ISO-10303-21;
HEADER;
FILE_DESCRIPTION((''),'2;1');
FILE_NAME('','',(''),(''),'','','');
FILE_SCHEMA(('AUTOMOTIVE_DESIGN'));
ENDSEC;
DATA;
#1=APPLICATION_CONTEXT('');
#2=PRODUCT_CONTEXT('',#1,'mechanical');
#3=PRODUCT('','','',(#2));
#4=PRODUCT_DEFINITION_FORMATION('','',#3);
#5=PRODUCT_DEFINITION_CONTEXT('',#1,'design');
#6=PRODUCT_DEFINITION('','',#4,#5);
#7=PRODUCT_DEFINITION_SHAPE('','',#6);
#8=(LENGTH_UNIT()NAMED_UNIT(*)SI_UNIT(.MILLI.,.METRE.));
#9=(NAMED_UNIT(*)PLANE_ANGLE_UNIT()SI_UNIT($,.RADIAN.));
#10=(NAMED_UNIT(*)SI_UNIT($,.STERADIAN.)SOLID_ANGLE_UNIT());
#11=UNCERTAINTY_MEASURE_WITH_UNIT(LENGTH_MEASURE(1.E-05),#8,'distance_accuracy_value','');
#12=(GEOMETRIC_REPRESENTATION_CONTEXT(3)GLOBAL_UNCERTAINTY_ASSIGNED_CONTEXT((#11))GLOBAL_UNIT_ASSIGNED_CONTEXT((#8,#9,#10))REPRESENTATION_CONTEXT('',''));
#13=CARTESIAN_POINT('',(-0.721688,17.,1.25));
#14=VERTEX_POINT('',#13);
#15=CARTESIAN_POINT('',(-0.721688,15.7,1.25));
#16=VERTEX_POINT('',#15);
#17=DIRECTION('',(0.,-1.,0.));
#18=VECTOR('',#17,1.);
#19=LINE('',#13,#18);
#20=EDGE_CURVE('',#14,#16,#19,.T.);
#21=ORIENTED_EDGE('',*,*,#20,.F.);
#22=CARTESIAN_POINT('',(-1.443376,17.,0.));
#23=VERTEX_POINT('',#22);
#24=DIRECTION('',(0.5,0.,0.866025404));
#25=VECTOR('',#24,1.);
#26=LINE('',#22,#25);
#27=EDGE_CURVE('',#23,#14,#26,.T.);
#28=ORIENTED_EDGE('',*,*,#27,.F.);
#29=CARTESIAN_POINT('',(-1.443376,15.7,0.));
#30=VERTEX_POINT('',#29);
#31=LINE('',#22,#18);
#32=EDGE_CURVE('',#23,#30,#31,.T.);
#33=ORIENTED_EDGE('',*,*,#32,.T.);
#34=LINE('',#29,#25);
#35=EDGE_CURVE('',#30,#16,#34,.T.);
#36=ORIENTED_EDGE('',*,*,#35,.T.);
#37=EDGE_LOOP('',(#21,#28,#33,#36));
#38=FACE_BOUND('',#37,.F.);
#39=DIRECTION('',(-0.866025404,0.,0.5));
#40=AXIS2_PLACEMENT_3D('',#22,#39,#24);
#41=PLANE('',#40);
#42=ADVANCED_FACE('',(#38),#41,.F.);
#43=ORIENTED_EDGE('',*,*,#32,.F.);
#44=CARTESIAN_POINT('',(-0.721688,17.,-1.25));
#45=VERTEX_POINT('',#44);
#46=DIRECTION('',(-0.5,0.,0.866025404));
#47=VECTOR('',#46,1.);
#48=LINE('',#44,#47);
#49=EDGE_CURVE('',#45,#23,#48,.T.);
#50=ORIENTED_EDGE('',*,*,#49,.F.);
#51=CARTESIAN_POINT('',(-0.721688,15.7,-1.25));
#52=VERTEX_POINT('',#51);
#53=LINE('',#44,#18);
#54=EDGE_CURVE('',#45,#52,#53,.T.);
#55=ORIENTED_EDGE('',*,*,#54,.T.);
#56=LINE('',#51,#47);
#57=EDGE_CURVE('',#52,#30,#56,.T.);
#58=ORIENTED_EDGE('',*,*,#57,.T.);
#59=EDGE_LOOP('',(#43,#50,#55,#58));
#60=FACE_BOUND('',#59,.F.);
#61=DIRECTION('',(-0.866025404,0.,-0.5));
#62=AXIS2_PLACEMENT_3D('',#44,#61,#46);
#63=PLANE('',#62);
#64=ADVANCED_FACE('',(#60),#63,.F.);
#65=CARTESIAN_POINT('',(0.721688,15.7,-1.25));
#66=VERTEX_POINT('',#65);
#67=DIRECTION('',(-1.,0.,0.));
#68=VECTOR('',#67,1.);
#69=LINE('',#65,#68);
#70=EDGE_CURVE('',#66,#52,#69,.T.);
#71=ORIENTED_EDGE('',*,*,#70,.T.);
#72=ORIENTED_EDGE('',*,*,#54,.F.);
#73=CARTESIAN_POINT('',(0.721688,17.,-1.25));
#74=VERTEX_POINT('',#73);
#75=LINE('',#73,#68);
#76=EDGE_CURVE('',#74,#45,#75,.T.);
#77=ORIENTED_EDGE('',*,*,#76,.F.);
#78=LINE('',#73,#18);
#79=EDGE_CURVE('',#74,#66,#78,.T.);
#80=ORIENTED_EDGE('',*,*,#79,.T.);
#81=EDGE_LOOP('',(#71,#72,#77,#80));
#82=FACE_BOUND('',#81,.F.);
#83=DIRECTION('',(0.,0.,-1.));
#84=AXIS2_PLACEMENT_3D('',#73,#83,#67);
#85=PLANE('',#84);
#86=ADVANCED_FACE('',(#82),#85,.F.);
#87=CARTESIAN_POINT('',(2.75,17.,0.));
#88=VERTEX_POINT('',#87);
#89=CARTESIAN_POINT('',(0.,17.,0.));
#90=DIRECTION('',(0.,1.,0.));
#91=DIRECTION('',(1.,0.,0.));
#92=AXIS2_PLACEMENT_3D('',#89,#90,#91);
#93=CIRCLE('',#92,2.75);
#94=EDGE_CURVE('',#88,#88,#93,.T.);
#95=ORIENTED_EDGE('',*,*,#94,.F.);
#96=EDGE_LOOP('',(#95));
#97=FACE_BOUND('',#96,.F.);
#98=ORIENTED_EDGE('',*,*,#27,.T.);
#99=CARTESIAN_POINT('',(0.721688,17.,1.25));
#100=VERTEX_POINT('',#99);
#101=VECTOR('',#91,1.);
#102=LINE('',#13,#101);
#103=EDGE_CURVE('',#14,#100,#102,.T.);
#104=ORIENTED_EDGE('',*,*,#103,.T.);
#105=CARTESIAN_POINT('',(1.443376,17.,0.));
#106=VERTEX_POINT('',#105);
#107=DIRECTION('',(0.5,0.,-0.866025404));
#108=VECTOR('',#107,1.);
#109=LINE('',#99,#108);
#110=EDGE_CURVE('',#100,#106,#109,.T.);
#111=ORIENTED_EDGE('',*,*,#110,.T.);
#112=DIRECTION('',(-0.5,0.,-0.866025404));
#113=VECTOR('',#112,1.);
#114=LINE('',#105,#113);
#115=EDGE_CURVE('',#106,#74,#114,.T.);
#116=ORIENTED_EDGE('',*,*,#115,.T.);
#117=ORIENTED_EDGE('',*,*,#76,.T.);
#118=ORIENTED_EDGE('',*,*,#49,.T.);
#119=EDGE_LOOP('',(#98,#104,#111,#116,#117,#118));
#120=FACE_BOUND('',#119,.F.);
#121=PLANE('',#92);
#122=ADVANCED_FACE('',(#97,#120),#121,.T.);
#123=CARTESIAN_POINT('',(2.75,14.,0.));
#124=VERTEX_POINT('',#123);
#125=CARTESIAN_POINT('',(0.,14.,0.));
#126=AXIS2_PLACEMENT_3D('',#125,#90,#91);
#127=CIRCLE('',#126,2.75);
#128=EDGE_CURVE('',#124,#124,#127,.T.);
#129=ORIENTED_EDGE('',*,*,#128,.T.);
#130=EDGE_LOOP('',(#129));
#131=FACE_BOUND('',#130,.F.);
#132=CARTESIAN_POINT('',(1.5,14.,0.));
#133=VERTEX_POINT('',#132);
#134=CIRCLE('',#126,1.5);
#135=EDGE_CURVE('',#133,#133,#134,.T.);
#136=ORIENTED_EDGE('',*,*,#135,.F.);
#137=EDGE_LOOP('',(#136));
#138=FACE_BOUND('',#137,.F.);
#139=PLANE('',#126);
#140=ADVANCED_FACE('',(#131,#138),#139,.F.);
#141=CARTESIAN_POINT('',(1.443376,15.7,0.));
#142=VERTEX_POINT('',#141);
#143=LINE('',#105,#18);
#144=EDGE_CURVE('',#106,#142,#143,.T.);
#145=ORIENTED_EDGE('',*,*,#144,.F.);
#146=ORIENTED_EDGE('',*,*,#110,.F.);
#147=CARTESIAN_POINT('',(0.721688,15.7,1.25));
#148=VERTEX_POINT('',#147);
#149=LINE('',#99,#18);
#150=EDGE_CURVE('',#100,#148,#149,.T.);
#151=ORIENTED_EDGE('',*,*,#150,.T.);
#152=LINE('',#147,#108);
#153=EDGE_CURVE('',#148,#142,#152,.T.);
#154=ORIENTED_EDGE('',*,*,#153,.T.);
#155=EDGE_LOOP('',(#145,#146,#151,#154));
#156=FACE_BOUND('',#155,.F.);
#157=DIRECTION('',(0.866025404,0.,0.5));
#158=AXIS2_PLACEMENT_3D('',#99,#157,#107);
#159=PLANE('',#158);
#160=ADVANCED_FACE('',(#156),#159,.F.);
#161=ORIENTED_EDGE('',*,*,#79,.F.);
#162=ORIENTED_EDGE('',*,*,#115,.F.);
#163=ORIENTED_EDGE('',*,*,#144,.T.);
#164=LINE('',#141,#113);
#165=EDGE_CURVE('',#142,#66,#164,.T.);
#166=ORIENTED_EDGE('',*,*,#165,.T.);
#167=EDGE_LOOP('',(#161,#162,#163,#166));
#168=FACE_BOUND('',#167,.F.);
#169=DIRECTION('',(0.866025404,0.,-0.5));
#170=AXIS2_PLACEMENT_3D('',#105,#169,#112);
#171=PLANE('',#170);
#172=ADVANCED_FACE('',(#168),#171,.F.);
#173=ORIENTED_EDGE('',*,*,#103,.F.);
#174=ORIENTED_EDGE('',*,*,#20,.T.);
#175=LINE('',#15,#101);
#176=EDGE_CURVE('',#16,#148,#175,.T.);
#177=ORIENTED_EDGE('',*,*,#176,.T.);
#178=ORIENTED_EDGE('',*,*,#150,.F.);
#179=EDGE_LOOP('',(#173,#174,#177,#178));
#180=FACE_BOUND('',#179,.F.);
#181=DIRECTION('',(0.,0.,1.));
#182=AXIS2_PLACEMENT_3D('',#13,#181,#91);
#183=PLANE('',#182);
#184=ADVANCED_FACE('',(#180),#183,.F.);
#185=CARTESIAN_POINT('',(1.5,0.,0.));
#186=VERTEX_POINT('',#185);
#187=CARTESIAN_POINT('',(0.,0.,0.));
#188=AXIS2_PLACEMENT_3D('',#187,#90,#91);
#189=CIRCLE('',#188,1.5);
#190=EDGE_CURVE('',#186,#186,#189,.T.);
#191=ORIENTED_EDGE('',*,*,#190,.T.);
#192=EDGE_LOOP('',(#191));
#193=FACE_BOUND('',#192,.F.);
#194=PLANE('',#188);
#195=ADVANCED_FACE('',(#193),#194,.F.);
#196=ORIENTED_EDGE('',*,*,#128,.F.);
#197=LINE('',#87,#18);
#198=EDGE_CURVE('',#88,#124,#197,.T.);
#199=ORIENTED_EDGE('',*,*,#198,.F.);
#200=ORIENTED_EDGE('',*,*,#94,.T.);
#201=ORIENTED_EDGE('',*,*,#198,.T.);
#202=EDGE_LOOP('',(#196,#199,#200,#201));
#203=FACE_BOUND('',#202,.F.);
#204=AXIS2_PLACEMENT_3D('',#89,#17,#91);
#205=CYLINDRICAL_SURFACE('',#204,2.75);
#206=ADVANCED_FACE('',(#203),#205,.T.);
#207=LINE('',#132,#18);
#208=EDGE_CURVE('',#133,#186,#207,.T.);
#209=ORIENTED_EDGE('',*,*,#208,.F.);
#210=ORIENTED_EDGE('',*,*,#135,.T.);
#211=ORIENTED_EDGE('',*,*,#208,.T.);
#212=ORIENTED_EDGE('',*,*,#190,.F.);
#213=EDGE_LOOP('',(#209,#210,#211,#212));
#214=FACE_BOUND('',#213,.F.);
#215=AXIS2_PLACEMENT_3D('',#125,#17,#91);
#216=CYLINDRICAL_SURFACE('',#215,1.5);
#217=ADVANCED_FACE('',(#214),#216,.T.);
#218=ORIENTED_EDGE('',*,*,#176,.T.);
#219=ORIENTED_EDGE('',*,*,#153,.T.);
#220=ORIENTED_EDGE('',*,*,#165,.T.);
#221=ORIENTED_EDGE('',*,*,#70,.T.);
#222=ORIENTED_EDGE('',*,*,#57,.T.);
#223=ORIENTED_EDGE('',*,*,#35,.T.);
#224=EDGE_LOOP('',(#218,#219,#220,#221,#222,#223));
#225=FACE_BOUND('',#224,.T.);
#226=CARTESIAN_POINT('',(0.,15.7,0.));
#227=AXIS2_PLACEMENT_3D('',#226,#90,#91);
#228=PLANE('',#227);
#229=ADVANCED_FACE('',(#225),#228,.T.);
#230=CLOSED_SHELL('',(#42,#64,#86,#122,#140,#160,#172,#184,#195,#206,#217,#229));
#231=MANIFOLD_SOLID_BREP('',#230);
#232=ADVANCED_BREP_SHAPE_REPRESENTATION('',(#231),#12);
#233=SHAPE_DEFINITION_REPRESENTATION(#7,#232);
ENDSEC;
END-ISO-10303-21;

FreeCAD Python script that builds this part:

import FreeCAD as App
import Part
import Sketcher

V = App.Vector
Q = App.Units.Quantity

doc = App.newDocument("Part")
body = doc.addObject("PartDesign::Body", "Body")

# Sketch on XY plane
sketch1 = doc.addObject("Sketcher::SketchObject", "Sketch")
body.addObject(sketch1)
sketch1.AttachmentSupport = (doc.XY_Plane, [""])
sketch1.MapMode = "FlatFace"
sketch1.addGeometry([
    Part.LineSegment(V(2.8, 17, 0), V(0, 17, 0)),  # 0
    Part.LineSegment(V(0, 17, 0), V(0, 0, 0)),  # 1
    Part.LineSegment(V(0, 0, 0), V(1.5, 0, 0)),  # 2
    Part.LineSegment(V(1.5, 0, 0), V(1.5, 14, 0)),  # 3
    Part.LineSegment(V(1.5, 14, 0), V(2.8, 14, 0)),  # 4
    Part.LineSegment(V(2.8, 14, 0), V(2.8, 17, 0)),  # 5
], False)
sketch1.addConstraint([
    Sketcher.Constraint("Coincident", 0, 2, 1, 1),
    Sketcher.Constraint("Coincident", 1, 2, 2, 1),
    Sketcher.Constraint("Coincident", 2, 2, 3, 1),
    Sketcher.Constraint("Coincident", 3, 2, 4, 1),
    Sketcher.Constraint("Coincident", 4, 2, 5, 1),
    Sketcher.Constraint("Coincident", 5, 2, 0, 1),
    Sketcher.Constraint("Horizontal", 0),
    Sketcher.Constraint("Vertical", 1),
    Sketcher.Constraint("Horizontal", 2),
    Sketcher.Constraint("Vertical", 3),
    Sketcher.Constraint("Horizontal", 4),
    Sketcher.Constraint("Vertical", 5),
    Sketcher.Constraint("Coincident", 1, 2, -1, 1),
    Sketcher.Constraint("DistanceY", 1, 2, 1, 1, 17.0),
    Sketcher.Constraint("DistanceY", 3, 1, 3, 2, 14.0),
    Sketcher.Constraint("DistanceX", 2, 1, 2, 2, 1.5),
    Sketcher.Constraint("DistanceX", 0, 2, 0, 1, 2.75),
])
revolution = doc.addObject("PartDesign::Revolution", "Revolution")
body.addObject(revolution)
revolution.Profile = sketch1
revolution.ReferenceAxis = (sketch1, ["V_Axis"])
revolution.Angle = 360

# Sketch on XZ plane
sketch2 = doc.addObject("Sketcher::SketchObject", "Sketch001")
body.addObject(sketch2)
sketch2.AttachmentSupport = (doc.XZ_Plane, [""])
sketch2.MapMode = "FlatFace"
sketch2.AttachmentOffset = App.Placement(V(0, 0, -17), App.Rotation())
sketch2.addGeometry([
    Part.LineSegment(V(-0.7, -1.2, 0), V(-1.4, 0, 0)),  # 0
    Part.LineSegment(V(-1.4, 0, 0), V(-0.7, 1.2, 0)),  # 1
    Part.LineSegment(V(-0.7, 1.2, 0), V(0.7, 1.2, 0)),  # 2
    Part.LineSegment(V(0.7, 1.2, 0), V(1.4, 0, 0)),  # 3
    Part.LineSegment(V(1.4, 0, 0), V(0.7, -1.2, 0)),  # 4
    Part.LineSegment(V(0.7, -1.2, 0), V(-0.7, -1.2, 0)),  # 5
], False)
sketch2.addConstraint([
    Sketcher.Constraint("Coincident", 0, 2, 1, 1),
    Sketcher.Constraint("Coincident", 1, 2, 2, 1),
    Sketcher.Constraint("Coincident", 2, 2, 3, 1),
    Sketcher.Constraint("Coincident", 3, 2, 4, 1),
    Sketcher.Constraint("Coincident", 4, 2, 5, 1),
    Sketcher.Constraint("Coincident", 5, 2, 0, 1),
    Sketcher.Constraint("Horizontal", 2),
    Sketcher.Constraint("Horizontal", 5),
    Sketcher.Constraint("Symmetric", 0, 2, 3, 2, -1, 1),
    Sketcher.Constraint("Symmetric", 1, 2, 4, 2, -1, 1),
    Sketcher.Constraint("PointOnObject", 0, 2, -1),
    Sketcher.Constraint("Parallel", 0, 3),
    Sketcher.Constraint("Vertical", 2, 2, 4, 2),
    Sketcher.Constraint("Angle", 0, Q("120 deg")),
    Sketcher.Constraint("DistanceY", 4, 2, 2, 2, 2.5),
    Sketcher.Constraint("DistanceX", 2, 1, 2, 2, 1.443376),
])
pocket1 = doc.addObject("PartDesign::Pocket", "Pocket")
body.addObject(pocket1)
pocket1.Profile = sketch2
pocket1.Length = 1.3
pocket1.Reversed = True

doc.recompute()
